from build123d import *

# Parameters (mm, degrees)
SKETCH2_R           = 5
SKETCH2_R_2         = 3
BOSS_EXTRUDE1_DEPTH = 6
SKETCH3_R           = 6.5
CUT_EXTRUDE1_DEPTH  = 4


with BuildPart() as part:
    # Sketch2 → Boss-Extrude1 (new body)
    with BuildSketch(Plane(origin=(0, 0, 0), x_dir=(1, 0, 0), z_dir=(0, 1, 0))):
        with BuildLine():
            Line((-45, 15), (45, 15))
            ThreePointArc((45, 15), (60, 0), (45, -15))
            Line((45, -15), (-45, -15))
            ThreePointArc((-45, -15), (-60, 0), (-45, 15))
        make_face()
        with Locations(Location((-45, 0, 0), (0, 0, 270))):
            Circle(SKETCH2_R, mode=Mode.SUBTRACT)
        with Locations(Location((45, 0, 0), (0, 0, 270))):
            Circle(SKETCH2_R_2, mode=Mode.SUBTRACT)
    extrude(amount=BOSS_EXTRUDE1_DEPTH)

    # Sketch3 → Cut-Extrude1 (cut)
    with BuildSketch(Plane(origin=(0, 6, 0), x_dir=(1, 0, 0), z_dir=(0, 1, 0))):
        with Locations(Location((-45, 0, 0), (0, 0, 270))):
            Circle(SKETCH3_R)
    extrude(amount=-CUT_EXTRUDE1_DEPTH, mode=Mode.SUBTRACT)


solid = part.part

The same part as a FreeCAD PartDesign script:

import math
import FreeCAD as App
import Part
import Sketcher

V = App.Vector
Q = App.Units.Quantity

doc = App.newDocument("Part")
body = doc.addObject("PartDesign::Body", "Body")

sketch1 = body.newObject("Sketcher::SketchObject", "Sketch")
sketch1.AttachmentSupport = (doc.getObject("XZ_Plane"), [""])
sketch1.MapMode = "FlatFace"
sketch1.addGeometry(Part.LineSegment(V(45, -15, 0), V(-45, -15, 0)), False)
sketch1.addGeometry(Part.ArcOfCircle(Part.Circle(V(-45, 0, 0), V(0, 0, 1), 15), math.radians(90), math.radians(270)), False)
sketch1.addGeometry(Part.LineSegment(V(-45, 15, 0), V(45, 15, 0)), False)
sketch1.addGeometry(Part.ArcOfCircle(Part.Circle(V(45, 0, 0), V(0, 0, 1), 15), math.radians(-90), math.radians(90)), False)
sketch1.addGeometry(Part.Circle(V(45, 0, 0), V(0, 0, 1), 3), False)
sketch1.addGeometry(Part.Circle(V(-45, 0, 0), V(0, 0, 1), 5), False)
sketch1.addConstraint(Sketcher.Constraint("Tangent", 0, 2, 1, 2))
sketch1.addConstraint(Sketcher.Constraint("Tangent", 1, 1, 2, 1))
sketch1.addConstraint(Sketcher.Constraint("Tangent", 2, 2, 3, 2))
sketch1.addConstraint(Sketcher.Constraint("Tangent", 3, 1, 0, 1))
sketch1.addConstraint(Sketcher.Constraint("Horizontal", 0))
sketch1.addConstraint(Sketcher.Constraint("Horizontal", 2))
sketch1.addConstraint(Sketcher.Constraint("Coincident", 4, 3, 3, 3))
sketch1.addConstraint(Sketcher.Constraint("Coincident", 5, 3, 1, 3))
sketch1.addConstraint(Sketcher.Constraint("Symmetric", 1, 3, 3, 3, -1, 1))
sketch1.addConstraint(Sketcher.Constraint("Diameter", 4, Q("6 mm")))
sketch1.addConstraint(Sketcher.Constraint("Diameter", 5, Q("10 mm")))
sketch1.addConstraint(Sketcher.Constraint("Radius", 1, Q("15 mm")))
sketch1.addConstraint(Sketcher.Constraint("DistanceX", 0, 2, 0, 1, Q("90 mm")))
pad1 = body.newObject("PartDesign::Pad", "Pad")
pad1.Profile = sketch1
pad1.Length = 6
pad1.Reversed = True

sketch2 = body.newObject("Sketcher::SketchObject", "Sketch001")
sketch2.AttachmentSupport = (doc.getObject("XZ_Plane"), [""])
sketch2.MapMode = "FlatFace"
sketch2.AttachmentOffset = App.Placement(V(0, 0, -6), App.Rotation())
sketch2.addGeometry(Part.Circle(V(-45, 0, 0), V(0, 0, 1), 6), False)
sketch2.addConstraint(Sketcher.Constraint("PointOnObject", 0, 3, -1))
sketch2.addConstraint(Sketcher.Constraint("Diameter", 0, Q("13 mm")))
sketch2.addConstraint(Sketcher.Constraint("DistanceX", 0, 3, -1, 1, Q("45 mm")))
pocket1 = body.newObject("PartDesign::Pocket", "Pocket")
pocket1.Profile = sketch2
pocket1.Length = 4
pocket1.Reversed = True

doc.recompute()
